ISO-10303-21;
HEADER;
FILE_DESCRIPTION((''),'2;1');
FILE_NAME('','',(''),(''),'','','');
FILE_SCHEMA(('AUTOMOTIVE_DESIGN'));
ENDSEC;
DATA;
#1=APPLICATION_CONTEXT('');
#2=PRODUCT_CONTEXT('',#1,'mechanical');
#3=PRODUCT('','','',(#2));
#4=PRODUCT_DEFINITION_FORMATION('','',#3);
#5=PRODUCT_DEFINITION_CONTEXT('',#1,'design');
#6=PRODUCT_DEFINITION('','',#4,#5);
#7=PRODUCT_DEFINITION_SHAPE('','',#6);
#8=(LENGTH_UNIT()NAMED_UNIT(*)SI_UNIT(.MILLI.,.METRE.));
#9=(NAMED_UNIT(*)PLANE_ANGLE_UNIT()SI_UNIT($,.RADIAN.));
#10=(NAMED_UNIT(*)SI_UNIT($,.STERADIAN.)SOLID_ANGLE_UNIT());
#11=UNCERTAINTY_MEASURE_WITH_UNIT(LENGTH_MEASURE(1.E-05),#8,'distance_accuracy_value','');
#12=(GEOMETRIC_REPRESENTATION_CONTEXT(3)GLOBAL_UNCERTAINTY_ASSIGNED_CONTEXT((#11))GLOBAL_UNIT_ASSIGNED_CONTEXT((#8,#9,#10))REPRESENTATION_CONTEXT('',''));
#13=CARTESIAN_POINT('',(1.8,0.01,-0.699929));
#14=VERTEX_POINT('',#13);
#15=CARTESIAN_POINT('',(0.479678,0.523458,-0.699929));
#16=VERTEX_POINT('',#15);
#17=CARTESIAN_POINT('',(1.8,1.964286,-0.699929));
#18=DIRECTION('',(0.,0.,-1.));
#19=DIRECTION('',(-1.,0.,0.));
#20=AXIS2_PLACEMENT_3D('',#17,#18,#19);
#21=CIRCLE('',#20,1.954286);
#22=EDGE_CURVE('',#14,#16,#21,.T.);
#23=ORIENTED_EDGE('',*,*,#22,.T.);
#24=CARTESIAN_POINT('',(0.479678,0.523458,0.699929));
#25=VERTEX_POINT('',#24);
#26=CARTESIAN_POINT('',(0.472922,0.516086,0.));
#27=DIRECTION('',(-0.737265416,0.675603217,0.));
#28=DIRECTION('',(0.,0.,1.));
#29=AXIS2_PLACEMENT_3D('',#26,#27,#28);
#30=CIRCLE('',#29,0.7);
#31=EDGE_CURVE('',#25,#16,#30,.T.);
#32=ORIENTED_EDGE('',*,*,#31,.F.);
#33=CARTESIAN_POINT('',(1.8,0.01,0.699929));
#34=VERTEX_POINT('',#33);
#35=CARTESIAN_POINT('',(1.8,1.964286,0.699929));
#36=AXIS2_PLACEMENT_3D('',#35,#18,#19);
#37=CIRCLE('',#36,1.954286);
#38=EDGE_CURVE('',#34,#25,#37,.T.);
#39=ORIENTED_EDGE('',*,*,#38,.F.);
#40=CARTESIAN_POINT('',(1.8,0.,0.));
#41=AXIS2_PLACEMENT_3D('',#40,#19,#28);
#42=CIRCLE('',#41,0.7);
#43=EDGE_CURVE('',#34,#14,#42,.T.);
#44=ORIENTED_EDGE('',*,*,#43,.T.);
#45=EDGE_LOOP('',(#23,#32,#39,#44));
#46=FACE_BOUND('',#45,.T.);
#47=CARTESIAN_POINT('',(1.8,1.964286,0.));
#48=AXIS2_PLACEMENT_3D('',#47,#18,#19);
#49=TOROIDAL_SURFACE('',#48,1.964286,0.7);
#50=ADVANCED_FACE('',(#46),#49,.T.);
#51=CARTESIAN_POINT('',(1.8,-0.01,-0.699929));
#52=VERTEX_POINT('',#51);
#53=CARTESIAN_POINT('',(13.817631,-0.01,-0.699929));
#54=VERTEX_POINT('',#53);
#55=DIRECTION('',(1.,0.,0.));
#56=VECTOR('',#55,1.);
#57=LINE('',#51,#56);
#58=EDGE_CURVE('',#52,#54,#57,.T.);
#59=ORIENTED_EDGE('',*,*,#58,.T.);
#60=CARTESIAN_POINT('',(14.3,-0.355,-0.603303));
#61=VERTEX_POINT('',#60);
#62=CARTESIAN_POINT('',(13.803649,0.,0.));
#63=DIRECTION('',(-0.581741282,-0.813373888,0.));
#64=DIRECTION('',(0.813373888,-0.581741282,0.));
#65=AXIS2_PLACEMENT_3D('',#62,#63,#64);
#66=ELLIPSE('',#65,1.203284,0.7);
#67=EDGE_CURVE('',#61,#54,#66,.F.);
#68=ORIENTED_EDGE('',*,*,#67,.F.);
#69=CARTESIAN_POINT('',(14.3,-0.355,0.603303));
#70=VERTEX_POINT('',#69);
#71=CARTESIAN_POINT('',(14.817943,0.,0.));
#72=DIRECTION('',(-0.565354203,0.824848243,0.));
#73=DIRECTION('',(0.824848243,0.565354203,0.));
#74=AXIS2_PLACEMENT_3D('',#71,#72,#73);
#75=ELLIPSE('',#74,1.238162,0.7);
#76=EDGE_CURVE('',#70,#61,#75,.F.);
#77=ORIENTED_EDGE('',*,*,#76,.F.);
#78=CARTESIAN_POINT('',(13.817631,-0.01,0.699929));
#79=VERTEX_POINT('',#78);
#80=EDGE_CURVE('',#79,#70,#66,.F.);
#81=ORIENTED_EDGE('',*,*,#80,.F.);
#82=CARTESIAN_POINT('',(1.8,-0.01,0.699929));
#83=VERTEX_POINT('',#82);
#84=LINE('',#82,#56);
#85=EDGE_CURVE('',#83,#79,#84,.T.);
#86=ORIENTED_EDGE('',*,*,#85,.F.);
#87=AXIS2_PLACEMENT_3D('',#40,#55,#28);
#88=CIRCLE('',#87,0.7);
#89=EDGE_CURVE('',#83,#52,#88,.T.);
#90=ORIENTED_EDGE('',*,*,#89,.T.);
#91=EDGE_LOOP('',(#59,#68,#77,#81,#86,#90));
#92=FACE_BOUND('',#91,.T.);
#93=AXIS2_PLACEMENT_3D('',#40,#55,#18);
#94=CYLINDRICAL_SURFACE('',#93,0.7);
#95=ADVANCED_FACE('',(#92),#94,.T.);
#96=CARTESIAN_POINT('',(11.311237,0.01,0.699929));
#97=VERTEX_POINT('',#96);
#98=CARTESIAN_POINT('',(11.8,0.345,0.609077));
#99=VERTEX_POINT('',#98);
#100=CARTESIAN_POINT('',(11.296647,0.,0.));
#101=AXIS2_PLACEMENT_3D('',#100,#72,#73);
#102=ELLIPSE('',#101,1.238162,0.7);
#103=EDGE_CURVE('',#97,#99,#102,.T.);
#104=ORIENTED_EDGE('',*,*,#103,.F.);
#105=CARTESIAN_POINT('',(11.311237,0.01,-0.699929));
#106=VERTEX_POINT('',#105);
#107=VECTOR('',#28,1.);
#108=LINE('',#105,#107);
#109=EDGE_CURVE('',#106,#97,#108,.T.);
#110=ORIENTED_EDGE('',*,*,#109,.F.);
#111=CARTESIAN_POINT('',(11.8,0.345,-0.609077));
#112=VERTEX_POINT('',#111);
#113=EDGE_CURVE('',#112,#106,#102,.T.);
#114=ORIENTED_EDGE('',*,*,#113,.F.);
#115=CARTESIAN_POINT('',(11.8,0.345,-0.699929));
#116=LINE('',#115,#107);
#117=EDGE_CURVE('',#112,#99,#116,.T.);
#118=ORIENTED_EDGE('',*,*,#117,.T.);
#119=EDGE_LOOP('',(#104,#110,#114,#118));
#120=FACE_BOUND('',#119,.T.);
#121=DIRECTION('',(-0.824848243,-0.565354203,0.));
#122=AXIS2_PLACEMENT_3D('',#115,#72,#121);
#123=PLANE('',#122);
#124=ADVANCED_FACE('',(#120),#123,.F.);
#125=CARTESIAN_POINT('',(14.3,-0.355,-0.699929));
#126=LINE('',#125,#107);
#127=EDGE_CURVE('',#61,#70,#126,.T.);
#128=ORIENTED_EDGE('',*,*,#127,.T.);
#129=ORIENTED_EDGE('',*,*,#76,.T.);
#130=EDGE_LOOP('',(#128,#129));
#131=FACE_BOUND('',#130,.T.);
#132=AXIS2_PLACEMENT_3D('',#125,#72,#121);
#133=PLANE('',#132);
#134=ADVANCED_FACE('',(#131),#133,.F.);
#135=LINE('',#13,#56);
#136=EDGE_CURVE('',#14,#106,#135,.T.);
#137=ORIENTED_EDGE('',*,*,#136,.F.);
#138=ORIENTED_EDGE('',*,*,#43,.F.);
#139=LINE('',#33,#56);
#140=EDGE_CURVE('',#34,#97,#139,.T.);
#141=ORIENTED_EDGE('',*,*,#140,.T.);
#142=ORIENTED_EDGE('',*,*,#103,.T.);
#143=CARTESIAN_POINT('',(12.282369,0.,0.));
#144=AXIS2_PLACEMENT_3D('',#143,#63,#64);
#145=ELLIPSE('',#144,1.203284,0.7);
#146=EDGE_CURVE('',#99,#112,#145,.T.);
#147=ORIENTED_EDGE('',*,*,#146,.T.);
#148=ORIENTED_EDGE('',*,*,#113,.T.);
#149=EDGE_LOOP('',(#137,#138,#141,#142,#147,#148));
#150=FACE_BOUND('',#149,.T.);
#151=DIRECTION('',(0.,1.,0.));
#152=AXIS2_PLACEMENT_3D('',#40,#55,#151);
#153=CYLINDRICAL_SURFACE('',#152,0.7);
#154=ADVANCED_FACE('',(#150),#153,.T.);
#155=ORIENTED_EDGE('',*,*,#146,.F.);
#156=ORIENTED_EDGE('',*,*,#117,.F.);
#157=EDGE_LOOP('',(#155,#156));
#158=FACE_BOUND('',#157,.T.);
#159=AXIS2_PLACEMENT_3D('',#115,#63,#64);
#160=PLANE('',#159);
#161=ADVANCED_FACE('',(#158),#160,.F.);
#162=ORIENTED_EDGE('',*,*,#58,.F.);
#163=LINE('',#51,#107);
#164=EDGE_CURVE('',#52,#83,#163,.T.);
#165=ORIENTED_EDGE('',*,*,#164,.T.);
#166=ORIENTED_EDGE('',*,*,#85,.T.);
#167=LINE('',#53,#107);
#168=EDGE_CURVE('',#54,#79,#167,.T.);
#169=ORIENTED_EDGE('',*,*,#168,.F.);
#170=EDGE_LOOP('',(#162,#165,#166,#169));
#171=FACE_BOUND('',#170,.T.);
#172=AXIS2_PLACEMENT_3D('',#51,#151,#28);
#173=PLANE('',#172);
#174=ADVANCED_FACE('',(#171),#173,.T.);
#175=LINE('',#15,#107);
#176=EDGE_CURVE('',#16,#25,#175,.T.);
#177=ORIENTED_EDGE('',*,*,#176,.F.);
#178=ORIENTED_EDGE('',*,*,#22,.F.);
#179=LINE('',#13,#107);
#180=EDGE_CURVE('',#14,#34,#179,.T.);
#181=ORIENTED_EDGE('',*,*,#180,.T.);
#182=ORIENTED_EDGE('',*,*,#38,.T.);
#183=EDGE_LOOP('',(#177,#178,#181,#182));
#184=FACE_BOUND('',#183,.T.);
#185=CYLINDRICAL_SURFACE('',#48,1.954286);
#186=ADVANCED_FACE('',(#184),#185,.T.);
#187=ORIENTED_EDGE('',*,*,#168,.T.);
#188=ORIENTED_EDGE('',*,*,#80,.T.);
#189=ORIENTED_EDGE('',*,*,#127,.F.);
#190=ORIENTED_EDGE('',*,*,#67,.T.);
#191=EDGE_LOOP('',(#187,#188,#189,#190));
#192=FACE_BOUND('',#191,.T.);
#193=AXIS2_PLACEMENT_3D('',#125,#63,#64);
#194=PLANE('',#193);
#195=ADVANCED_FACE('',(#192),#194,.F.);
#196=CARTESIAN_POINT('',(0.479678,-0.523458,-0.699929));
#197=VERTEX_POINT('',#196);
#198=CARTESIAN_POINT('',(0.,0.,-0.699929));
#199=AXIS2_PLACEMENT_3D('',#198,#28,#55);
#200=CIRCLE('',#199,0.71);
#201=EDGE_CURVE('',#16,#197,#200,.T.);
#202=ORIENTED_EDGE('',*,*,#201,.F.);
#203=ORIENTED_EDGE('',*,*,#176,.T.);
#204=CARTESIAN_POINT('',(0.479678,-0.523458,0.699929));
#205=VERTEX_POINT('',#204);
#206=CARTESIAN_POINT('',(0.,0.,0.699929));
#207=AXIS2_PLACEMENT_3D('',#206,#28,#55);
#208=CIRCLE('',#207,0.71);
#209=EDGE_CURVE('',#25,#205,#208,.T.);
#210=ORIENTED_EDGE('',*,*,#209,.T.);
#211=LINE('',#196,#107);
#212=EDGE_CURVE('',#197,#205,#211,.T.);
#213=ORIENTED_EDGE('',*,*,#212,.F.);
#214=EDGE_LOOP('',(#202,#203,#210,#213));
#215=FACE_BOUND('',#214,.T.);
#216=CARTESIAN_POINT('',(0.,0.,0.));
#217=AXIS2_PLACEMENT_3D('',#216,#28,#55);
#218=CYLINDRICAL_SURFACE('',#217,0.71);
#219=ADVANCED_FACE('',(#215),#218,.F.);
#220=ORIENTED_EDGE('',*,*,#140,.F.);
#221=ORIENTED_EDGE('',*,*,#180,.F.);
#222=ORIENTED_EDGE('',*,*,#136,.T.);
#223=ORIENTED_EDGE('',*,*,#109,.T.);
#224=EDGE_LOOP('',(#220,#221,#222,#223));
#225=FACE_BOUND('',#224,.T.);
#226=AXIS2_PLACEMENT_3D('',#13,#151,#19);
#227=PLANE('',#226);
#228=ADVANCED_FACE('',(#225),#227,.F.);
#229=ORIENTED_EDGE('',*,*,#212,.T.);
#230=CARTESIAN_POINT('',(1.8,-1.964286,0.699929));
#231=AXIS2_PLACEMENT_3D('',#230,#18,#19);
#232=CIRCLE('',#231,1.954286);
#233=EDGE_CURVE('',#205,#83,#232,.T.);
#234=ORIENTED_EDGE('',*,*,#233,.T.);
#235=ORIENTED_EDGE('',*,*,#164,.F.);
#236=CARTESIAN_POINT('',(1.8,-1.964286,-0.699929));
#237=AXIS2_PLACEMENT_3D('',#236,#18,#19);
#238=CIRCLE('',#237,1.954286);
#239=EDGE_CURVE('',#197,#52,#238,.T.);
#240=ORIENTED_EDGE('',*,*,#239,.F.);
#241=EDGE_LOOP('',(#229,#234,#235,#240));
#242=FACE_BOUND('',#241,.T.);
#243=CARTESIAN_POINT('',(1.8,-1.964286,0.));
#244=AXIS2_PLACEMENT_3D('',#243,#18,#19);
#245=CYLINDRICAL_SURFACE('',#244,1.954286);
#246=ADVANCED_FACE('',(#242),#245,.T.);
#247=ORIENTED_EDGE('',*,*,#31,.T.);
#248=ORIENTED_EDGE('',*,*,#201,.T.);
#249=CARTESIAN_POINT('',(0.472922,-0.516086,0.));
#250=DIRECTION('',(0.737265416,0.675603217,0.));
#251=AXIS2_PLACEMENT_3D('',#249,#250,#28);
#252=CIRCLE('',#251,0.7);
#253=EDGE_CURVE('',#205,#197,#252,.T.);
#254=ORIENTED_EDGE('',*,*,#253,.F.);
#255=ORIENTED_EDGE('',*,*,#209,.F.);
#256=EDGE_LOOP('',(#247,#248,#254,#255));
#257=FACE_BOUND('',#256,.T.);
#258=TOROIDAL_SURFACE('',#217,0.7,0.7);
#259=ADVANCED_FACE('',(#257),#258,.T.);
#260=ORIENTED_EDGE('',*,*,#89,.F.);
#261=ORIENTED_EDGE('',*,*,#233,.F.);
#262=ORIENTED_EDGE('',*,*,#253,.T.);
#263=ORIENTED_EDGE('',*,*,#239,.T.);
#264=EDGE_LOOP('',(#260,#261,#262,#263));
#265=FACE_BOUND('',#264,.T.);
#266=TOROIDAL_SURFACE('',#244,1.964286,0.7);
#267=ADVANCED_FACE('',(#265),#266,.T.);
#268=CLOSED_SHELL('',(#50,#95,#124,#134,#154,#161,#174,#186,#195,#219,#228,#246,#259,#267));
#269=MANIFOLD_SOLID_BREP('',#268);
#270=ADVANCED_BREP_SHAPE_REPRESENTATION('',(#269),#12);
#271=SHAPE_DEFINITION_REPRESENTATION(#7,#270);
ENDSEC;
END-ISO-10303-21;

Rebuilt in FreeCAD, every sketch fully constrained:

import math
import FreeCAD as App
import Part
import Sketcher
Q = App.Units.Quantity

doc = App.newDocument("Part")
params = doc.addObject("Spreadsheet::Sheet", "Params")
for row, (alias, value) in enumerate([
    ("sketch1_radius", "0.7 mm"),
    ("sketch2_radius", "1.4 mm"),
    ("sketch2_width", "10 mm"),
    ("sketch2_width2", "12.5 mm"),
    ("sketch3_height", "1.4 mm"),
], start=1):
    params.set(f"A{row}", alias)
    params.set(f"B{row}", "=" + value)
    params.setAlias(f"B{row}", alias)

body = doc.addObject("PartDesign::Body", "Body")

# Sketch on YZ plane
sketch1 = body.newObject("Sketcher::SketchObject", "Sketch")
sketch1.AttachmentSupport = (doc.getObject("YZ_Plane"), [""])
sketch1.MapMode = "FlatFace"
sketch1.AttachmentOffset = App.Placement(App.Vector(0, 0, 11.8), App.Rotation())
sketch1.addGeometry(Part.LineSegment(App.Vector(0.01, -0.699929, 0), App.Vector(0.01, 0.699929, 0)), False)
sketch1.addGeometry(Part.ArcOfCircle(Part.Circle(App.Vector(0, 0, 0), App.Vector(0, 0, 1), 0.7), math.radians(-89.181461), math.radians(89.181461)), False)
sketch1.addConstraint(Sketcher.Constraint("Coincident", 0, 1, 1, 1))
sketch1.addConstraint(Sketcher.Constraint("Coincident", 1, 2, 0, 2))
sketch1.addConstraint(Sketcher.Constraint("Vertical", 0))
sketch1.addConstraint(Sketcher.Constraint("Coincident", 1, 3, -1, 1))
sketch1.addConstraint(Sketcher.Constraint("Radius", 1, Q("0.7 mm")))
sketch1.addConstraint(Sketcher.Constraint("DistanceX", -1, 1, 0, 1, Q("0.01 mm")))
sketch1.setExpression("Constraints[4]", "Params.sketch1_radius")

# Sketch on XY plane
sketch2 = body.newObject("Sketcher::SketchObject", "Sketch001")
sketch2.AttachmentSupport = (doc.getObject("XY_Plane"), [""])
sketch2.MapMode = "FlatFace"
sketch2.addGeometry(Part.LineSegment(App.Vector(11.8, 0.7, 0), App.Vector(1.8, 0.7, 0)), False)
sketch2.addGeometry(Part.ArcOfCircle(Part.Circle(App.Vector(1.8, 1.964286, 0), App.Vector(0, 0, 1), 1.264286), math.radians(-132.501011), math.radians(-90)), False)
sketch2.addGeometry(Part.ArcOfCircle(Part.Circle(App.Vector(0, 0, 0), App.Vector(0, 0, 1), 1.4), math.radians(47.498989), math.radians(312.501011)), False)
sketch2.addGeometry(Part.ArcOfCircle(Part.Circle(App.Vector(1.8, -1.964286, 0), App.Vector(0, 0, 1), 1.264286), math.radians(90), math.radians(132.501011)), False)
sketch2.addGeometry(Part.LineSegment(App.Vector(1.8, -0.7, 0), App.Vector(14.3, -0.7, 0)), False)
sketch2.addConstraint(Sketcher.Constraint("Tangent", 0, 2, 1, 2))
sketch2.addConstraint(Sketcher.Constraint("Tangent", 1, 1, 2, 1))
sketch2.addConstraint(Sketcher.Constraint("Tangent", 2, 2, 3, 2))
sketch2.addConstraint(Sketcher.Constraint("Tangent", 3, 1, 4, 1))
sketch2.addConstraint(Sketcher.Constraint("Horizontal", 0))
sketch2.addConstraint(Sketcher.Constraint("Horizontal", 4))
sketch2.addConstraint(Sketcher.Constraint("Coincident", 2, 3, -1, 1))
sketch2.addConstraint(Sketcher.Constraint("Equal", 1, 3))
sketch2.addConstraint(Sketcher.Constraint("Vertical", 1, 3, 3, 3))
sketch2.addConstraint(Sketcher.Constraint("Radius", 2, Q("1.4 mm")))
sketch2.addConstraint(Sketcher.Constraint("DistanceX", 0, 2, 0, 1, Q("10 mm")))
sketch2.addConstraint(Sketcher.Constraint("DistanceX", 4, 1, 4, 2, Q("12.5 mm")))
sketch2.addConstraint(Sketcher.Constraint("DistanceX", -1, 1, 1, 3, Q("1.8 mm")))
sketch2.addConstraint(Sketcher.Constraint("DistanceY", -1, 1, 0, 1, Q("0.7 mm")))
sketch2.setExpression("Constraints[9]", "Params.sketch2_radius")
sketch2.setExpression("Constraints[10]", "Params.sketch2_width")
sketch2.setExpression("Constraints[11]", "Params.sketch2_width2")
doc.recompute()

additivepipe = body.newObject("PartDesign::AdditivePipe", "AdditivePipe")
additivepipe.Profile = sketch1
additivepipe.Spine = (sketch2, ["Edge1", "Edge2", "Edge3", "Edge4", "Edge5"])

# Sketch on XY plane
sketch3 = body.newObject("Sketcher::SketchObject", "Sketch002")
sketch3.AttachmentSupport = (doc.getObject("XY_Plane"), [""])
sketch3.MapMode = "FlatFace"
sketch3.addGeometry(Part.LineSegment(App.Vector(11.303649, 0.7, 0), App.Vector(11.8, 0.345, 0)), False)
sketch3.addGeometry(Part.LineSegment(App.Vector(11.8, 0.345, 0), App.Vector(11.296647, 0, 0)), False)
sketch3.addGeometry(Part.LineSegment(App.Vector(11.296647, 0, 0), App.Vector(13.803649, 0, 0)), False)
sketch3.addGeometry(Part.LineSegment(App.Vector(13.803649, 0, 0), App.Vector(14.3, -0.355, 0)), False)
sketch3.addGeometry(Part.LineSegment(App.Vector(14.3, -0.355, 0), App.Vector(13.796647, -0.7, 0)), False)
sketch3.addGeometry(Part.LineSegment(App.Vector(13.796647, -0.7, 0), App.Vector(14.31, -0.7, 0)), False)
sketch3.addGeometry(Part.LineSegment(App.Vector(14.31, -0.7, 0), App.Vector(14.31, 0.7, 0)), False)
sketch3.addGeometry(Part.LineSegment(App.Vector(14.31, 0.7, 0), App.Vector(11.303649, 0.7, 0)), False)
sketch3.addConstraint(Sketcher.Constraint("Coincident", 0, 2, 1, 1))
sketch3.addConstraint(Sketcher.Constraint("Coincident", 1, 2, 2, 1))
sketch3.addConstraint(Sketcher.Constraint("Coincident", 2, 2, 3, 1))
sketch3.addConstraint(Sketcher.Constraint("Coincident", 3, 2, 4, 1))
sketch3.addConstraint(Sketcher.Constraint("Coincident", 4, 2, 5, 1))
sketch3.addConstraint(Sketcher.Constraint("Coincident", 5, 2, 6, 1))
sketch3.addConstraint(Sketcher.Constraint("Coincident", 6, 2, 7, 1))
sketch3.addConstraint(Sketcher.Constraint("Coincident", 7, 2, 0, 1))
sketch3.addConstraint(Sketcher.Constraint("Horizontal", 2))
sketch3.addConstraint(Sketcher.Constraint("Horizontal", 5))
sketch3.addConstraint(Sketcher.Constraint("Vertical", 6))
sketch3.addConstraint(Sketcher.Constraint("Horizontal", 7))
sketch3.addConstraint(Sketcher.Constraint("PointOnObject", 1, 2, -1))
sketch3.addConstraint(Sketcher.Constraint("Parallel", 0, 3))
sketch3.addConstraint(Sketcher.Constraint("Parallel", 1, 4))
sketch3.addConstraint(Sketcher.Constraint("Equal", 0, 1))
sketch3.addConstraint(Sketcher.Constraint("Equal", 1, 3))
sketch3.addConstraint(Sketcher.Constraint("Equal", 3, 4))
sketch3.addConstraint(Sketcher.Constraint("DistanceY", 6, 1, 6, 2, Q("1.4 mm")))
sketch3.addConstraint(Sketcher.Constraint("DistanceX", -1, 1, 0, 2, Q("11.8 mm")))
sketch3.addConstraint(Sketcher.Constraint("DistanceX", -1, 1, 3, 2, Q("14.3 mm")))
sketch3.addConstraint(Sketcher.Constraint("DistanceX", -1, 1, 5, 2, Q("14.31 mm")))
sketch3.addConstraint(Sketcher.Constraint("DistanceY", -1, 1, 0, 2, Q("0.345 mm")))
sketch3.addConstraint(Sketcher.Constraint("DistanceX", 7, 2, 7, 1, Q("3.006351 mm")))
sketch3.setExpression("Constraints[18]", "Params.sketch3_height")
pocket1 = body.newObject("PartDesign::Pocket", "Pocket")
pocket1.Profile = sketch3
pocket1.Type = "ThroughAll"
pocket1.Midplane = True

doc.recompute()
